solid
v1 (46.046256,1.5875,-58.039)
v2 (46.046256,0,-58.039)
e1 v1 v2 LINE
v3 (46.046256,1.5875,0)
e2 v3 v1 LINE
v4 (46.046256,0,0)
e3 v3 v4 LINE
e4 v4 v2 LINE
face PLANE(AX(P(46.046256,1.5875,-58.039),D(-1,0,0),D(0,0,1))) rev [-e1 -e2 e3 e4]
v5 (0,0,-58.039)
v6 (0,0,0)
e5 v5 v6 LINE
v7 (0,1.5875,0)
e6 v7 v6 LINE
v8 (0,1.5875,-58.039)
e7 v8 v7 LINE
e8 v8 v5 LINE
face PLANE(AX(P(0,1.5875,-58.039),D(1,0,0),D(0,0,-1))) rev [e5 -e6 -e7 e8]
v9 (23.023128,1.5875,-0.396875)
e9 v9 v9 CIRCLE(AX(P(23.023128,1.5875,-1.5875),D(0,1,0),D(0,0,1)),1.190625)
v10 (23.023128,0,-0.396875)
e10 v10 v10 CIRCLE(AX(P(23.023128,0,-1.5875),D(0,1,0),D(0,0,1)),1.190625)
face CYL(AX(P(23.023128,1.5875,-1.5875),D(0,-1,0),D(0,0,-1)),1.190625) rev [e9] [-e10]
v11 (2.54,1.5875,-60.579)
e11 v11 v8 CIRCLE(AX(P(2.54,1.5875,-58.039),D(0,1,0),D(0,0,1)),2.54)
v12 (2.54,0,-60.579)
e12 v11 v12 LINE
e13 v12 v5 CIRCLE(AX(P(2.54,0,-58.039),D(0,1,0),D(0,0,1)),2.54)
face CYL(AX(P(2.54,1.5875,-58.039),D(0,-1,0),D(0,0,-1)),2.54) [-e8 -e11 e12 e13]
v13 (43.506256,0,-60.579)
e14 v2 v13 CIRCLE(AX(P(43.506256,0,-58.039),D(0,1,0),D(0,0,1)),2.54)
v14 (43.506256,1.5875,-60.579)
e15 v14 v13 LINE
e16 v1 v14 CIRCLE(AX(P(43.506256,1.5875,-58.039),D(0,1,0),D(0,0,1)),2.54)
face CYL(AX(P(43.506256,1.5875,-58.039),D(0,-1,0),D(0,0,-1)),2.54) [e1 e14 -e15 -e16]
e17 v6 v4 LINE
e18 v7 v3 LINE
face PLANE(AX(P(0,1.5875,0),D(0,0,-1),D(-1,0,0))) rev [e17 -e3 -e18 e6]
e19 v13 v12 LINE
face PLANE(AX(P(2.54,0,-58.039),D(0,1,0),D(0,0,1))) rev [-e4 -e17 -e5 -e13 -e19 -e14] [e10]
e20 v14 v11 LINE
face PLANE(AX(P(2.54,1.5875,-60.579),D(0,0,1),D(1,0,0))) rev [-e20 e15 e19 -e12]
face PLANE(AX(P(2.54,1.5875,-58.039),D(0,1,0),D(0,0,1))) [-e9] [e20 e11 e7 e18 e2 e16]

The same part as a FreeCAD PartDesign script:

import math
import FreeCAD as App
import Part
import Sketcher

V = App.Vector
Q = App.Units.Quantity

doc = App.newDocument("Part")
body = doc.addObject("PartDesign::Body", "Body")

sketch1 = body.newObject("Sketcher::SketchObject", "Sketch")
sketch1.AttachmentSupport = (doc.getObject("XZ_Plane"), [""])
sketch1.MapMode = "FlatFace"
sketch1.addGeometry(Part.LineSegment(V(43.5, -60.6, 0), V(2.5, -60.6, 0)), False)
sketch1.addGeometry(Part.ArcOfCircle(Part.Circle(V(2.5, -58, 0), V(0, 0, 1), 2.5), math.radians(-180), math.radians(-90)), False)
sketch1.addGeometry(Part.LineSegment(V(0, -58, 0), V(0, 0, 0)), False)
sketch1.addGeometry(Part.LineSegment(V(0, 0, 0), V(46, 0, 0)), False)
sketch1.addGeometry(Part.LineSegment(V(46, 0, 0), V(46, -58, 0)), False)
sketch1.addGeometry(Part.ArcOfCircle(Part.Circle(V(43.5, -58, 0), V(0, 0, 1), 2.5), math.radians(-90), math.radians(0)), False)
sketch1.addGeometry(Part.Circle(V(23, -1.6, 0), V(0, 0, 1), 1.2), False)
sketch1.addConstraint(Sketcher.Constraint("Tangent", 0, 2, 1, 2))
sketch1.addConstraint(Sketcher.Constraint("Tangent", 1, 1, 2, 1))
sketch1.addConstraint(Sketcher.Constraint("Coincident", 2, 2, 3, 1))
sketch1.addConstraint(Sketcher.Constraint("Coincident", 3, 2, 4, 1))
sketch1.addConstraint(Sketcher.Constraint("Tangent", 4, 2, 5, 2))
sketch1.addConstraint(Sketcher.Constraint("Tangent", 5, 1, 0, 1))
sketch1.addConstraint(Sketcher.Constraint("Horizontal", 0))
sketch1.addConstraint(Sketcher.Constraint("Vertical", 2))
sketch1.addConstraint(Sketcher.Constraint("Horizontal", 3))
sketch1.addConstraint(Sketcher.Constraint("Vertical", 4))
sketch1.addConstraint(Sketcher.Constraint("Coincident", 2, 2, -1, 1))
sketch1.addConstraint(Sketcher.Constraint("Equal", 1, 5))
sketch1.addConstraint(Sketcher.Constraint("Radius", 1, Q("0.1 in")))
sketch1.addConstraint(Sketcher.Constraint("Diameter", 6, Q("0.09375 in")))
sketch1.addConstraint(Sketcher.Constraint("DistanceY", 2, 1, 2, 2, Q("2.285 in")))
sketch1.addConstraint(Sketcher.Constraint("DistanceY", 6, 3, -1, 1, Q("0.0625 in")))
sketch1.addConstraint(Sketcher.Constraint("DistanceX", 0, 2, 0, 1, Q("40.966256 mm")))
sketch1.addConstraint(Sketcher.Constraint("DistanceX", -1, 1, 6, 3, Q("23.023128 mm")))
pad1 = body.newObject("PartDesign::Pad", "Pad")
pad1.Profile = sketch1
pad1.Length = Q("0.0625 in")
pad1.Reversed = True

doc.recompute()
